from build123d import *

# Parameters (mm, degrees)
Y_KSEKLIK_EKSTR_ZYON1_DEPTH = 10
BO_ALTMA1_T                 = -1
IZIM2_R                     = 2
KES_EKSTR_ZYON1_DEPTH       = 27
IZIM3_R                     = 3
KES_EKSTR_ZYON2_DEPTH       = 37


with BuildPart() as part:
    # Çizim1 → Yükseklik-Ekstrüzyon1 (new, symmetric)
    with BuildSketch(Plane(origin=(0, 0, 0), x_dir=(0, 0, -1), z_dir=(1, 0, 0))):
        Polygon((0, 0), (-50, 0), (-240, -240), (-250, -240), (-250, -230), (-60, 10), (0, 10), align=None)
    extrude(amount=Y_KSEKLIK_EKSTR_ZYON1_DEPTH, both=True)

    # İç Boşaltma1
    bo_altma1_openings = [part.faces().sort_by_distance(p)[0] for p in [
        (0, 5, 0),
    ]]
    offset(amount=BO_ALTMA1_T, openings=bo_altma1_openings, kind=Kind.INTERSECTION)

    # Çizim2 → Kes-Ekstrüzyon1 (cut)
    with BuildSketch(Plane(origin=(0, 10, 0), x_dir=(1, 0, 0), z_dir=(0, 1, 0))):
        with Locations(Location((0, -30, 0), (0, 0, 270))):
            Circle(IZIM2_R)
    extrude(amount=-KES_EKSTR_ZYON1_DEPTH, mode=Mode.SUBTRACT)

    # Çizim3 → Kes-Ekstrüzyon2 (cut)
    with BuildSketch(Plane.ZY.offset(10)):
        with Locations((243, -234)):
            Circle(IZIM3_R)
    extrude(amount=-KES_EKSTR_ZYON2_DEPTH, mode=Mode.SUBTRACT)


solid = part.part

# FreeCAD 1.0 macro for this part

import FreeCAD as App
import Part
import Sketcher
Q = App.Units.Quantity


def faces_at(feature, points):
    """Names of the faces that lie closest to the given points."""
    faces = feature.Shape.Faces
    near = lambda p: min(range(len(faces)), key=lambda i: faces[i].distToShape(Part.Vertex(*p))[0])
    return sorted({f"Face{near(p) + 1}" for p in points})


def add_polygon(sketch, points):
    """Adds a closed chain of lines whose ends are joined by coincident constraints."""
    first, n = sketch.GeometryCount, len(points)
    for a, b in zip(points, points[1:] + points[:1]):
        sketch.addGeometry(Part.LineSegment(App.Vector(*a, 0), App.Vector(*b, 0)), False)
    for i in range(n):
        sketch.addConstraint(Sketcher.Constraint("Coincident", first + i, 2, first + (i + 1) % n, 1))

doc = App.newDocument("Part")
params = doc.addObject("Spreadsheet::Sheet", "Params")
for row, (alias, value) in enumerate([
    ("sketch1_width", "10 mm"),
    ("sketch1_height", "50 mm"),
    ("pad1_length", "20 mm"),
    ("thickness_wall", "1 mm"),
    ("sketch2_diameter", "4 mm"),
    ("pocket1_length", "27 mm"),
    ("sketch3_diameter", "6 mm"),
    ("pocket2_length", "37 mm"),
], start=1):
    params.set(f"A{row}", alias)
    params.set(f"B{row}", "=" + value)
    params.setAlias(f"B{row}", alias)

body = doc.addObject("PartDesign::Body", "Body")

sketch1 = body.newObject("Sketcher::SketchObject", "Sketch")
sketch1.AttachmentSupport = (doc.getObject("YZ_Plane"), [""])
sketch1.MapMode = "FlatFace"
add_polygon(sketch1, [(0, 50), (0, 0), (10, 0), (10, 60), (-230, 250), (-240, 250), (-240, 240)])
sketch1.addConstraint([
    Sketcher.Constraint("Vertical", 0),
    Sketcher.Constraint("Horizontal", 1),
    Sketcher.Constraint("Vertical", 2),
    Sketcher.Constraint("Horizontal", 4),
    Sketcher.Constraint("Vertical", 5),
    Sketcher.Constraint("Coincident", 0, 2, -1, 1),
    Sketcher.Constraint("Parallel", 3, 6),
    Sketcher.Constraint("Equal", 1, 4),
    Sketcher.Constraint("Equal", 4, 5),
    Sketcher.Constraint("DistanceX", 1, 1, 1, 2, Q("10 mm")),
    Sketcher.Constraint("DistanceY", 0, 2, 0, 1, Q("50 mm")),
    Sketcher.Constraint("DistanceX", 3, 2, -1, 1, Q("230 mm")),
    Sketcher.Constraint("DistanceY", -1, 1, 3, 2, Q("250 mm")),
])
sketch1.setExpression("Constraints[16]", "Params.sketch1_width")
sketch1.setExpression("Constraints[17]", "Params.sketch1_height")
pad1 = body.newObject("PartDesign::Pad", "Pad")
pad1.Profile = sketch1
pad1.setExpression("Length", "Params.pad1_length")
pad1.Midplane = True
doc.recompute()

thickness = body.newObject("PartDesign::Thickness", "Thickness")
thickness.Base = (pad1, faces_at(pad1, [(0, 5, 0)]))
thickness.setExpression("Value", "Params.thickness_wall")
thickness.Reversed = True
thickness.Join = "Intersection"

sketch2 = body.newObject("Sketcher::SketchObject", "Sketch001")
sketch2.AttachmentSupport = (doc.getObject("XZ_Plane"), [""])
sketch2.MapMode = "FlatFace"
sketch2.AttachmentOffset = App.Placement(App.Vector(0, 0, -10), App.Rotation())
sketch2.addGeometry(Part.Circle(App.Vector(0, 30, 0), App.Vector(0, 0, 1), 2), False)
sketch2.addConstraint([
    Sketcher.Constraint("PointOnObject", 0, 3, -2),
    Sketcher.Constraint("Diameter", 0, Q("4 mm")),
    Sketcher.Constraint("DistanceY", -1, 1, 0, 3, Q("30 mm")),
])
sketch2.setExpression("Constraints[1]", "Params.sketch2_diameter")
pocket1 = body.newObject("PartDesign::Pocket", "Pocket")
pocket1.Profile = sketch2
pocket1.setExpression("Length", "Params.pocket1_length")
pocket1.Reversed = True

sketch3 = body.newObject("Sketcher::SketchObject", "Sketch002")
sketch3.AttachmentSupport = (doc.getObject("YZ_Plane"), [""])
sketch3.MapMode = "FlatFace"
sketch3.AttachmentOffset = App.Placement(App.Vector(0, 0, -10), App.Rotation())
sketch3.addGeometry(Part.Circle(App.Vector(-234, 243, 0), App.Vector(0, 0, 1), 3), False)
sketch3.addConstraint([
    Sketcher.Constraint("Diameter", 0, Q("6 mm")),
    Sketcher.Constraint("DistanceX", 0, 3, -1, 1, Q("234 mm")),
    Sketcher.Constraint("DistanceY", -1, 1, 0, 3, Q("243 mm")),
])
sketch3.setExpression("Constraints[0]", "Params.sketch3_diameter")
pocket2 = body.newObject("PartDesign::Pocket", "Pocket001")
pocket2.Profile = sketch3
pocket2.setExpression("Length", "Params.pocket2_length")
pocket2.Reversed = True

doc.recompute()
